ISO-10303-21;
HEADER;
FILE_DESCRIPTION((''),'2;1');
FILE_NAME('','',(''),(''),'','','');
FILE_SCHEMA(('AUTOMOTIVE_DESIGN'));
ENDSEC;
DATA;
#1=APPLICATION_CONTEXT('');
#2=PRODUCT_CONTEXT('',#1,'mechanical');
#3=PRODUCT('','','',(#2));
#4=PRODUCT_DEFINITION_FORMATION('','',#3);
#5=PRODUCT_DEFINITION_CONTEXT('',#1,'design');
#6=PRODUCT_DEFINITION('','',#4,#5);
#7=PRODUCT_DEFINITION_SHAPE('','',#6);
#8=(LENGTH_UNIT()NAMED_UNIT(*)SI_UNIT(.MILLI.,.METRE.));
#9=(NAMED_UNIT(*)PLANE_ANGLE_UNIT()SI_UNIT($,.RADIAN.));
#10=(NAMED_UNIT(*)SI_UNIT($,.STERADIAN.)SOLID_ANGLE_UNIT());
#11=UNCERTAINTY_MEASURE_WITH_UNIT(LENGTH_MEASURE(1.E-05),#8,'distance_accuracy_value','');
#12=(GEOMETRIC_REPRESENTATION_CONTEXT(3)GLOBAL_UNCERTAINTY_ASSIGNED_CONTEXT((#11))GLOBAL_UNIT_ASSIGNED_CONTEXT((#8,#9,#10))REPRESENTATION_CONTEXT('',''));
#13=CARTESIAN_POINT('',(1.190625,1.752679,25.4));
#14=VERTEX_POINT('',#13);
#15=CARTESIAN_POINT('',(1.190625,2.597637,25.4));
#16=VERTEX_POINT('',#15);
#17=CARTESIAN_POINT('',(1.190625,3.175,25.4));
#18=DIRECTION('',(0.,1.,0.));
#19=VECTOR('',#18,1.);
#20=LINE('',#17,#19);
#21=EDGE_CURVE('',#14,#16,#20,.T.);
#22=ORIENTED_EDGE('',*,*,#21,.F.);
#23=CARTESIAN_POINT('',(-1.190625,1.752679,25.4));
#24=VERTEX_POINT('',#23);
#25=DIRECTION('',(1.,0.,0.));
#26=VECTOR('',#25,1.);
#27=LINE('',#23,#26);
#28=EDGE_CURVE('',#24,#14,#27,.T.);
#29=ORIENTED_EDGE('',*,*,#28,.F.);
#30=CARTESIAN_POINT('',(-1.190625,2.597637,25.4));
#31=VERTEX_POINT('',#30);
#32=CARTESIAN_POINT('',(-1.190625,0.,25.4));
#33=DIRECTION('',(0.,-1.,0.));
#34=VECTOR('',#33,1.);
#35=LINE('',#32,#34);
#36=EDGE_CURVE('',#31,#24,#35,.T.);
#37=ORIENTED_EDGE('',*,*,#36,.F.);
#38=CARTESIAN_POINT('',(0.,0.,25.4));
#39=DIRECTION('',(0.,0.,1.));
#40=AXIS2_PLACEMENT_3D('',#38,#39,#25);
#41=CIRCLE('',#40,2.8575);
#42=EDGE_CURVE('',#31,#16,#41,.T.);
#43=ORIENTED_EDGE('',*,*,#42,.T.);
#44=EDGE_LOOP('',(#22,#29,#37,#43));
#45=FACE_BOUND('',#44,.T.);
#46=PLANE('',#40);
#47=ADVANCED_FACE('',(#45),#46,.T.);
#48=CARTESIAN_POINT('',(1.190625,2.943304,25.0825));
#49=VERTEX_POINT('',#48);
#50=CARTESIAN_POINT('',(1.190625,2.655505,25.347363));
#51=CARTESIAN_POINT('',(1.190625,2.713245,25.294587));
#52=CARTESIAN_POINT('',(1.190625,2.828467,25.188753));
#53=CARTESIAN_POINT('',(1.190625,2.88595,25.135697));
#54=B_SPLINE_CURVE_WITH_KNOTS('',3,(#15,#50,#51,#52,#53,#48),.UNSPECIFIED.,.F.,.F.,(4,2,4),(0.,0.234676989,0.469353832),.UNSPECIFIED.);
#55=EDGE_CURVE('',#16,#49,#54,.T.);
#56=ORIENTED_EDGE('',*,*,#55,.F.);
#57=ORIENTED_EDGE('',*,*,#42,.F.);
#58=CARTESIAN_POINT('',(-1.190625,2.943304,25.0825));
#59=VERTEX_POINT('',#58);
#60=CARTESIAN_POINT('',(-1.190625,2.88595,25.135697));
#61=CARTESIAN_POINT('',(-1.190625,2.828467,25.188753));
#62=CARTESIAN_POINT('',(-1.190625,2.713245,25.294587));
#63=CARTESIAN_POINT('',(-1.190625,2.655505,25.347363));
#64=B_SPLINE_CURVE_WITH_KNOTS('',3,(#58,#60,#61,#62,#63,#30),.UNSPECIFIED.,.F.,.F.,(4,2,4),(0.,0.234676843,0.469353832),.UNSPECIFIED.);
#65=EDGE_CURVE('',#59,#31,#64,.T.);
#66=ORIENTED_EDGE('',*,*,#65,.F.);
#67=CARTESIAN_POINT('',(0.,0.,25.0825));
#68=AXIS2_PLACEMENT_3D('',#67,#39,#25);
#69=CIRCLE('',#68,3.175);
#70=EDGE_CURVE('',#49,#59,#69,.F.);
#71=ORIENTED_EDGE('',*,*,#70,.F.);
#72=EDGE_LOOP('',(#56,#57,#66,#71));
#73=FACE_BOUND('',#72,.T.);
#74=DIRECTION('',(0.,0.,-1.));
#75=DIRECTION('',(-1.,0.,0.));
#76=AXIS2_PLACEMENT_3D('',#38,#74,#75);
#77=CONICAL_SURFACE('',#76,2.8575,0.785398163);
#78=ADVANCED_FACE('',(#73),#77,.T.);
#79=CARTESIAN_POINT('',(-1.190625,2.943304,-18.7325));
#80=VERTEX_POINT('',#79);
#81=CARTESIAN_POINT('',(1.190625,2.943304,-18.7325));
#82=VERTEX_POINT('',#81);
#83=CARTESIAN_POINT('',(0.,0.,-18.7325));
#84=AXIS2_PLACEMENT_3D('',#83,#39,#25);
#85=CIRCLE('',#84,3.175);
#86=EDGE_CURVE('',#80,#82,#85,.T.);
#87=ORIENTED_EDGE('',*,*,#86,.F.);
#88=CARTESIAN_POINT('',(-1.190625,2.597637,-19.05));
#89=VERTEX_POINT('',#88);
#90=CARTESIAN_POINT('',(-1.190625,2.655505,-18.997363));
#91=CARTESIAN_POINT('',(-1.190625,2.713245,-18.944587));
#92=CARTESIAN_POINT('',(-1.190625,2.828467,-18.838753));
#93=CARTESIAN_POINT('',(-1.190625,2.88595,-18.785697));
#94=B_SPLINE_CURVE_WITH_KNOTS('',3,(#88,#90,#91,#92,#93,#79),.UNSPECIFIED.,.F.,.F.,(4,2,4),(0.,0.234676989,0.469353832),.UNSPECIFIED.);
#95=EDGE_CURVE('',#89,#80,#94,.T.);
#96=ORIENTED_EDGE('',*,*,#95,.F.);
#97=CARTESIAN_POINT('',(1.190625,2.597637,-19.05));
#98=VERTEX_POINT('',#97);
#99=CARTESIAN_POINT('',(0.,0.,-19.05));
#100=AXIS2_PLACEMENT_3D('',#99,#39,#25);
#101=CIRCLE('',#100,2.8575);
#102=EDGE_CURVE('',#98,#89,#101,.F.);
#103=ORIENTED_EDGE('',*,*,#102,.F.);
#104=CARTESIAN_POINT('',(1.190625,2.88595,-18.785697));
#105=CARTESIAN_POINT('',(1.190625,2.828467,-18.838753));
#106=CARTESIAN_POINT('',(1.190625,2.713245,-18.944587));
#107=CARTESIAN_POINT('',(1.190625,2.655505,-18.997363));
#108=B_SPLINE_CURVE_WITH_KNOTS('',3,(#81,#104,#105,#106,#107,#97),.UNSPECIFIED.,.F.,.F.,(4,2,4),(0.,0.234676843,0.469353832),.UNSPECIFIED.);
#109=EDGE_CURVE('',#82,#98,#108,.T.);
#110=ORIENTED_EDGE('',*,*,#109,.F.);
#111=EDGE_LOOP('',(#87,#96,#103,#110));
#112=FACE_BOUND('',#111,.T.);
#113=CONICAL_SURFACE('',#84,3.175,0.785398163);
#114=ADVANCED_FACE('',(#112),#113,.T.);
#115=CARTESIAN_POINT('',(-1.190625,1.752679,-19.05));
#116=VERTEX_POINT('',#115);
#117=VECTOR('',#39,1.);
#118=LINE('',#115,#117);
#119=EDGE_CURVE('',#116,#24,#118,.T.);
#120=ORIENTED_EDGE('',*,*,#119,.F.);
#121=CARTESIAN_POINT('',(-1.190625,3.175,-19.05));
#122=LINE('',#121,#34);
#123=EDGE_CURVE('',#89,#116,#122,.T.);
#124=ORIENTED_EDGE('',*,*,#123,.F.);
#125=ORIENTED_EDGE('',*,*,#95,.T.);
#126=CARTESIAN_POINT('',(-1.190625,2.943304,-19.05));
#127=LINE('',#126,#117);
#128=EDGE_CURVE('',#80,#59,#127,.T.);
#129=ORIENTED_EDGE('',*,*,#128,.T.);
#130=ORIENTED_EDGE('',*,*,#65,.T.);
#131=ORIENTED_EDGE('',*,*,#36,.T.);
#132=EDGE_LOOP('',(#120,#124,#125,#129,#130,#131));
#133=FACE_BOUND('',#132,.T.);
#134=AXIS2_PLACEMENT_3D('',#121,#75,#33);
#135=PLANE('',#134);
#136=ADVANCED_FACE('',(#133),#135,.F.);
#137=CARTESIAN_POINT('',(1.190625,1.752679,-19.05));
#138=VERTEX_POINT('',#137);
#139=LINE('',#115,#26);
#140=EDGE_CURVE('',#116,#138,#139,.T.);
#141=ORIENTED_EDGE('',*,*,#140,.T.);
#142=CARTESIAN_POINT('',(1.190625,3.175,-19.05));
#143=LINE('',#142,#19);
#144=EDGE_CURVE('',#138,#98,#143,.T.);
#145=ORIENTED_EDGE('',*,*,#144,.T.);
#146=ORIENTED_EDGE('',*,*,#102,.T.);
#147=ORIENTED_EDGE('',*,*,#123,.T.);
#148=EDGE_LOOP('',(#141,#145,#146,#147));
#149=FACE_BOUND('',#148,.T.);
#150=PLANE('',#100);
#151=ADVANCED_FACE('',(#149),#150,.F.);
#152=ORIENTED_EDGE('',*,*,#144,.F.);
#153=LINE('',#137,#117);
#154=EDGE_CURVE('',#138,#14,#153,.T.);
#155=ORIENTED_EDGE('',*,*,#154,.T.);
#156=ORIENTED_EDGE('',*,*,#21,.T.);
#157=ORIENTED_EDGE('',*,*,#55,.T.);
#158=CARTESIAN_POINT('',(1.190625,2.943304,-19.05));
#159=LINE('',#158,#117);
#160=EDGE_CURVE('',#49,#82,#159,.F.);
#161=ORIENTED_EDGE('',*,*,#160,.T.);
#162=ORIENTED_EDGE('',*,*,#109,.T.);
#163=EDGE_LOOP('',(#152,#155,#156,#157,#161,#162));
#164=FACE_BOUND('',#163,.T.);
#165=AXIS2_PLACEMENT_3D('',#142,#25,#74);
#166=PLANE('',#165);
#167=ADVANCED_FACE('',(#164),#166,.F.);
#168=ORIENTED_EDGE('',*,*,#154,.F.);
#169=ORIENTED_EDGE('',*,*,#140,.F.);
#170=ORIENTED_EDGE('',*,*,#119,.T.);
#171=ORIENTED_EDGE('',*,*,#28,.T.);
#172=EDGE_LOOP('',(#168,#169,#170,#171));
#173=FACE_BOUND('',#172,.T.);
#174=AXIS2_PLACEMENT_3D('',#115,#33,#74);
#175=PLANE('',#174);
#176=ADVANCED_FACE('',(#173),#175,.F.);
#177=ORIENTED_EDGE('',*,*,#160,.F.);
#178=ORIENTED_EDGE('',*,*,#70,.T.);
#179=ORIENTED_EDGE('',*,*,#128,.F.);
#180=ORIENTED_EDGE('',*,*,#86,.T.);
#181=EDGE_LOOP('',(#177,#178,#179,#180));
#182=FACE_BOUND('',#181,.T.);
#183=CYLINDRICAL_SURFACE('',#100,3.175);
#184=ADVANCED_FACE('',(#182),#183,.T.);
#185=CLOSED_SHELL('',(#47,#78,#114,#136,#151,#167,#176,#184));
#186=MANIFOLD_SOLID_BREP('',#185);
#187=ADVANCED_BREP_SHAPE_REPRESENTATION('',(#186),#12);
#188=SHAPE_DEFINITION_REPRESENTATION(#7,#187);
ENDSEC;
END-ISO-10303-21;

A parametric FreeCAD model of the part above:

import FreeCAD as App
import Part
import Sketcher
Q = App.Units.Quantity


def edges_at(feature, points):
    """Names of the edges that pass closest to the given points."""
    edges = feature.Shape.Edges
    near = lambda p: min(range(len(edges)), key=lambda i: edges[i].distToShape(Part.Vertex(*p))[0])
    return sorted({f"Edge{near(p) + 1}" for p in points})

doc = App.newDocument("Part")
body = doc.addObject("PartDesign::Body", "Body")

sketch1 = body.newObject("Sketcher::SketchObject", "Sketch")
sketch1.AttachmentSupport = (doc.getObject("XY_Plane"), [""])
sketch1.MapMode = "FlatFace"
sketch1.addGeometry(Part.Circle(App.Vector(0, 0, 0), App.Vector(0, 0, 1), 3.2), False)
sketch1.addConstraint(Sketcher.Constraint("Coincident", 0, 3, -1, 1))
sketch1.addConstraint(Sketcher.Constraint("Diameter", 0, Q("0.25 in")))
pad1 = body.newObject("PartDesign::Pad", "Pad")
pad1.Profile = sketch1
pad1.Type = "TwoLengths"
pad1.Length = Q("1 in")
pad1.Length2 = Q("0.75 in")

sketch2 = body.newObject("Sketcher::SketchObject", "Sketch001")
sketch2.AttachmentSupport = (doc.getObject("XY_Plane"), [""])
sketch2.MapMode = "FlatFace"
sketch2.addGeometry(Part.LineSegment(App.Vector(-1.2, 3.2, 0), App.Vector(-1.2, 1.8, 0)), False)
sketch2.addGeometry(Part.LineSegment(App.Vector(-1.2, 1.8, 0), App.Vector(1.2, 1.8, 0)), False)
sketch2.addGeometry(Part.LineSegment(App.Vector(1.2, 1.8, 0), App.Vector(1.2, 3.2, 0)), False)
sketch2.addGeometry(Part.LineSegment(App.Vector(1.2, 3.2, 0), App.Vector(-1.2, 3.2, 0)), False)
sketch2.addConstraint(Sketcher.Constraint("Coincident", 0, 2, 1, 1))
sketch2.addConstraint(Sketcher.Constraint("Coincident", 1, 2, 2, 1))
sketch2.addConstraint(Sketcher.Constraint("Coincident", 2, 2, 3, 1))
sketch2.addConstraint(Sketcher.Constraint("Coincident", 3, 2, 0, 1))
sketch2.addConstraint(Sketcher.Constraint("Vertical", 0))
sketch2.addConstraint(Sketcher.Constraint("Horizontal", 1))
sketch2.addConstraint(Sketcher.Constraint("Vertical", 2))
sketch2.addConstraint(Sketcher.Constraint("Horizontal", 3))
sketch2.addConstraint(Sketcher.Constraint("DistanceX", 1, 1, 1, 2, Q("0.09375 in")))
sketch2.addConstraint(Sketcher.Constraint("DistanceX", 0, 2, -1, 1, Q("0.046875 in")))
sketch2.addConstraint(Sketcher.Constraint("DistanceY", -1, 1, 2, 2, Q("0.125 in")))
sketch2.addConstraint(Sketcher.Constraint("DistanceY", 0, 2, 0, 1, Q("1.422321 mm")))
pocket1 = body.newObject("PartDesign::Pocket", "Pocket")
pocket1.Profile = sketch2
pocket1.Type = "ThroughAll"
pocket1.Midplane = True
doc.recompute()

chamfer = body.newObject("PartDesign::Chamfer", "Chamfer")
chamfer.Base = (pocket1, edges_at(pocket1, [(0, -3.175, -19.05), (0, -3.175, 25.4)]))
chamfer.Size = Q("0.0125 in")

doc.recompute()
